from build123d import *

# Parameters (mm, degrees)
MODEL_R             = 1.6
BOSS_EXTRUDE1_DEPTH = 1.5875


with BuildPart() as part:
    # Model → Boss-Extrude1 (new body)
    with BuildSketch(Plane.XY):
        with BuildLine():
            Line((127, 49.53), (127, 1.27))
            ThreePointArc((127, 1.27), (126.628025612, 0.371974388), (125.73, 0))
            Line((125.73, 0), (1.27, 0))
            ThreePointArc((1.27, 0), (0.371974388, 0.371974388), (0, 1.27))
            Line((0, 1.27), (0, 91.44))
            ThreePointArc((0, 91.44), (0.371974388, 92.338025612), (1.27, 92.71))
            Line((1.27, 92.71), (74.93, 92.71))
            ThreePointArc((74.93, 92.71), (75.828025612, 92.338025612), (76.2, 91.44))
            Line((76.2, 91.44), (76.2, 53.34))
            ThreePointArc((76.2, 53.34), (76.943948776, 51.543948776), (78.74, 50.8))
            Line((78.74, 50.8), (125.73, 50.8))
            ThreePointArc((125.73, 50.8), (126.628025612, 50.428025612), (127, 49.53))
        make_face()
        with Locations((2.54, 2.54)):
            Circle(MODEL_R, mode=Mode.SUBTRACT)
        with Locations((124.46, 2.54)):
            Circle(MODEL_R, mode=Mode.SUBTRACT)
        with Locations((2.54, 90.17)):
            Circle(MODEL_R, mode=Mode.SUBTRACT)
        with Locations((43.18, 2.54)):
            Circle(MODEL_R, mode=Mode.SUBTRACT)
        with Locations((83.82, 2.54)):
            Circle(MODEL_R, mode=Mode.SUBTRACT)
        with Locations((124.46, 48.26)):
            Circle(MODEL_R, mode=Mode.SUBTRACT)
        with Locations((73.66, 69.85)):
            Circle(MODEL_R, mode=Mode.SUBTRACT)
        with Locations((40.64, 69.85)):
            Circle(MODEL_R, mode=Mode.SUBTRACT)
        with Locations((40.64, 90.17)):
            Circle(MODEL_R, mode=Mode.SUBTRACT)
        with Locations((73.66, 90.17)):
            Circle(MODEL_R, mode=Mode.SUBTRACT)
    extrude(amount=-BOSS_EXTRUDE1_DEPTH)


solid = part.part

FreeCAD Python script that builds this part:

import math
import FreeCAD as App
import Part
import Sketcher

V = App.Vector
Q = App.Units.Quantity

doc = App.newDocument("Part")
params = doc.addObject("Spreadsheet::Sheet", "Params")
for row, (alias, value) in enumerate([
    ("sketch1_radius", "0.1 in"),
    ("sketch1_radius2", "0.05 in"),
    ("sketch1_width", "2.9 in"),
    ("sketch1_width2", "4.9 in"),
    ("sketch1_height", "1.9 in"),
    ("pad1_length", "0.0625 in"),
], start=1):
    params.set(f"A{row}", alias)
    params.set(f"B{row}", "=" + value)
    params.setAlias(f"B{row}", alias)

body = doc.addObject("PartDesign::Body", "Body")

# Sketch on XY plane
sketch1 = doc.addObject("Sketcher::SketchObject", "Sketch")
body.addObject(sketch1)
sketch1.AttachmentSupport = (doc.XY_Plane, [""])
sketch1.MapMode = "FlatFace"
sketch1.addGeometry([
    Part.LineSegment(V(127, 1.3, 0), V(127, 49.5, 0)),  # 0
    Part.ArcOfCircle(Part.Circle(V(125.7, 49.5, 0), V(0, 0, 1), 1.3), math.radians(0), math.radians(90)),  # 1
    Part.LineSegment(V(125.7, 50.8, 0), V(78.7, 50.8, 0)),  # 2
    Part.ArcOfCircle(Part.Circle(V(78.7, 53.3, 0), V(0, 0, 1), 2.5), math.radians(-180), math.radians(-90)),  # 3
    Part.LineSegment(V(76.2, 53.3, 0), V(76.2, 91.4, 0)),  # 4
    Part.ArcOfCircle(Part.Circle(V(74.9, 91.4, 0), V(0, 0, 1), 1.3), math.radians(0), math.radians(90)),  # 5
    Part.LineSegment(V(74.9, 92.7, 0), V(1.3, 92.7, 0)),  # 6
    Part.ArcOfCircle(Part.Circle(V(1.3, 91.4, 0), V(0, 0, 1), 1.3), math.radians(90), math.radians(180)),  # 7
    Part.LineSegment(V(0, 91.4, 0), V(0, 1.3, 0)),  # 8
    Part.ArcOfCircle(Part.Circle(V(1.3, 1.3, 0), V(0, 0, 1), 1.3), math.radians(180), math.radians(270)),  # 9
    Part.LineSegment(V(1.3, 0, 0), V(125.7, 0, 0)),  # 10
    Part.ArcOfCircle(Part.Circle(V(125.7, 1.3, 0), V(0, 0, 1), 1.3), math.radians(-90), math.radians(0)),  # 11
    Part.Circle(V(124.5, 2.5, 0), V(0, 0, 1), 1.6),  # 12
    Part.Circle(V(83.8, 2.5, 0), V(0, 0, 1), 1.6),  # 13
    Part.Circle(V(43.2, 2.5, 0), V(0, 0, 1), 1.6),  # 14
    Part.Circle(V(2.5, 2.5, 0), V(0, 0, 1), 1.6),  # 15
    Part.Circle(V(124.5, 48.3, 0), V(0, 0, 1), 1.6),  # 16
    Part.Circle(V(73.7, 69.8, 0), V(0, 0, 1), 1.6),  # 17
    Part.Circle(V(73.7, 90.2, 0), V(0, 0, 1), 1.6),  # 18
    Part.Circle(V(40.6, 69.8, 0), V(0, 0, 1), 1.6),  # 19
    Part.Circle(V(40.6, 90.2, 0), V(0, 0, 1), 1.6),  # 20
    Part.Circle(V(2.5, 90.2, 0), V(0, 0, 1), 1.6),  # 21
], False)
sketch1.addConstraint([
    Sketcher.Constraint("Tangent", 0, 2, 1, 1),
    Sketcher.Constraint("Tangent", 1, 2, 2, 1),
    Sketcher.Constraint("Tangent", 2, 2, 3, 2),
    Sketcher.Constraint("Tangent", 3, 1, 4, 1),
    Sketcher.Constraint("Tangent", 4, 2, 5, 1),
    Sketcher.Constraint("Tangent", 5, 2, 6, 1),
    Sketcher.Constraint("Tangent", 6, 2, 7, 1),
    Sketcher.Constraint("Tangent", 7, 2, 8, 1),
    Sketcher.Constraint("Tangent", 8, 2, 9, 1),
    Sketcher.Constraint("Tangent", 9, 2, 10, 1),
    Sketcher.Constraint("Tangent", 10, 2, 11, 1),
    Sketcher.Constraint("Tangent", 11, 2, 0, 1),
    Sketcher.Constraint("Vertical", 0),
    Sketcher.Constraint("Horizontal", 2),
    Sketcher.Constraint("Vertical", 4),
    Sketcher.Constraint("Horizontal", 6),
    Sketcher.Constraint("Vertical", 8),
    Sketcher.Constraint("Horizontal", 10),
    Sketcher.Constraint("Equal", 1, 5),
    Sketcher.Constraint("Equal", 5, 7),
    Sketcher.Constraint("Equal", 7, 9),
    Sketcher.Constraint("Equal", 9, 11),
    Sketcher.Constraint("Equal", 12, 13),
    Sketcher.Constraint("Equal", 13, 14),
    Sketcher.Constraint("Equal", 14, 15),
    Sketcher.Constraint("Equal", 15, 16),
    Sketcher.Constraint("Equal", 16, 17),
    Sketcher.Constraint("Equal", 17, 18),
    Sketcher.Constraint("Equal", 18, 19),
    Sketcher.Constraint("Equal", 19, 20),
    Sketcher.Constraint("Equal", 20, 21),
    Sketcher.Constraint("PointOnObject", 7, 2, -2),
    Sketcher.Constraint("PointOnObject", 9, 2, -1),
    Sketcher.Constraint("Horizontal", 12, 3, 13, 3),
    Sketcher.Constraint("Horizontal", 13, 3, 14, 3),
    Sketcher.Constraint("Horizontal", 14, 3, 15, 3),
    Sketcher.Constraint("Horizontal", 17, 3, 19, 3),
    Sketcher.Constraint("Horizontal", 18, 3, 20, 3),
    Sketcher.Constraint("Horizontal", 20, 3, 21, 3),
    Sketcher.Constraint("Vertical", 12, 3, 16, 3),
    Sketcher.Constraint("Vertical", 17, 3, 18, 3),
    Sketcher.Constraint("Vertical", 19, 3, 20, 3),
    Sketcher.Constraint("Vertical", 15, 3, 21, 3),
    Sketcher.Constraint("Radius", 3, Q("0.1 in")),
    Sketcher.Constraint("Radius", 1, Q("0.05 in")),
    Sketcher.Constraint("DistanceX", 6, 2, 6, 1, Q("2.9 in")),
    Sketcher.Constraint("DistanceX", 10, 1, 10, 2, Q("4.9 in")),
    Sketcher.Constraint("DistanceY", 0, 1, 0, 2, Q("1.9 in")),
    Sketcher.Constraint("DistanceY", 4, 1, 4, 2, Q("1.5 in")),
    Sketcher.Constraint("DistanceY", 12, 3, 3, 3, Q("2 in")),
    Sketcher.Constraint("DistanceX", 15, 3, 3, 3, Q("3 in")),
    Sketcher.Constraint("DistanceX", 17, 3, 16, 3, Q("2 in")),
    Sketcher.Constraint("DistanceX", -1, 1, 12, 3, Q("4.9 in")),
    Sketcher.Constraint("DistanceX", -1, 1, 13, 3, Q("3.3 in")),
    Sketcher.Constraint("DistanceX", -1, 1, 14, 3, Q("1.7 in")),
    Sketcher.Constraint("DistanceY", -1, 1, 16, 3, Q("1.9 in")),
    Sketcher.Constraint("DistanceX", -1, 1, 19, 3, Q("1.6 in")),
    Sketcher.Constraint("DistanceY", 1, 3, 17, 3, Q("0.8 in")),
    Sketcher.Constraint("DistanceY", 17, 3, 18, 3, Q("0.8 in")),
    Sketcher.Constraint("Diameter", 12, 3.2),
])
sketch1.setExpression("Constraints[43]", "Params.sketch1_radius")
sketch1.setExpression("Constraints[44]", "Params.sketch1_radius2")
sketch1.setExpression("Constraints[45]", "Params.sketch1_width")
sketch1.setExpression("Constraints[46]", "Params.sketch1_width2")
sketch1.setExpression("Constraints[47]", "Params.sketch1_height")
pad1 = doc.addObject("PartDesign::Pad", "Pad")
body.addObject(pad1)
pad1.Profile = sketch1
pad1.setExpression("Length", "Params.pad1_length")
pad1.Reversed = True

doc.recompute()
